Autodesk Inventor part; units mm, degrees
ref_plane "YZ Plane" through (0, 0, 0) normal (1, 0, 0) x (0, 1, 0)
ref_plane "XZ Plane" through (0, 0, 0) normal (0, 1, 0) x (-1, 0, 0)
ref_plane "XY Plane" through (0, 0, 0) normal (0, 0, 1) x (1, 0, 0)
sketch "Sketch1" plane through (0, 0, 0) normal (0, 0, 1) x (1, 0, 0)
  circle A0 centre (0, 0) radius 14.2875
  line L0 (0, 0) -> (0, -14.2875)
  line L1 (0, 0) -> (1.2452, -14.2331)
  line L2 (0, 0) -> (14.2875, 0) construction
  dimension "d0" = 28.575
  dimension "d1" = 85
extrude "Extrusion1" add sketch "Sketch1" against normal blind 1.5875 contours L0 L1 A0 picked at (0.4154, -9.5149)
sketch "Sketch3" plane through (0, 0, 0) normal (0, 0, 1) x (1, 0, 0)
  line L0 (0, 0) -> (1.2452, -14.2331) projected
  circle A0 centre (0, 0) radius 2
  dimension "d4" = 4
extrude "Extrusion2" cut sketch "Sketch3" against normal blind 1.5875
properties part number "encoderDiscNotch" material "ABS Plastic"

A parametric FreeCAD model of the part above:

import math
import FreeCAD as App
import Part
import Sketcher
Q = App.Units.Quantity

doc = App.newDocument("Part")
params = doc.addObject("Spreadsheet::Sheet", "Params")
for row, (alias, value) in enumerate([
    ("sketch1_radius", "0.5625 in"),
    ("pad1_length", "0.0625 in"),
    ("pocket1_length", "0.0625 in"),
], start=1):
    params.set(f"A{row}", alias)
    params.set(f"B{row}", "=" + value)
    params.setAlias(f"B{row}", alias)

body = doc.addObject("PartDesign::Body", "Body")

# Sketch on XY plane
sketch1 = body.newObject("Sketcher::SketchObject", "Sketch")
sketch1.AttachmentSupport = (doc.getObject("XY_Plane"), [""])
sketch1.MapMode = "FlatFace"
sketch1.addGeometry(Part.LineSegment(App.Vector(0, 0, 0), App.Vector(0, -14.3, 0)), False)
sketch1.addGeometry(Part.ArcOfCircle(Part.Circle(App.Vector(0, 0, 0), App.Vector(0, 0, 1), 14.3), math.radians(-90), math.radians(-85)), False)
sketch1.addGeometry(Part.LineSegment(App.Vector(1.2, -14.2, 0), App.Vector(0, 0, 0)), False)
sketch1.addConstraint(Sketcher.Constraint("Coincident", 0, 2, 1, 1))
sketch1.addConstraint(Sketcher.Constraint("Coincident", 1, 2, 2, 1))
sketch1.addConstraint(Sketcher.Constraint("Coincident", 2, 2, 0, 1))
sketch1.addConstraint(Sketcher.Constraint("Vertical", 0))
sketch1.addConstraint(Sketcher.Constraint("Coincident", 1, 3, -1, 1))
sketch1.addConstraint(Sketcher.Constraint("Coincident", 2, 2, -1, 1))
sketch1.addConstraint(Sketcher.Constraint("Radius", 1, Q("0.5625 in")))
sketch1.addConstraint(Sketcher.Constraint("Angle", 2, Q("94.9999 deg")))
sketch1.setExpression("Constraints[6]", "Params.sketch1_radius")
pad1 = body.newObject("PartDesign::Pad", "Pad")
pad1.Profile = sketch1
pad1.setExpression("Length", "Params.pad1_length")
pad1.Reversed = True

# Sketch on XY plane
sketch2 = body.newObject("Sketcher::SketchObject", "Sketch001")
sketch2.AttachmentSupport = (doc.getObject("XY_Plane"), [""])
sketch2.MapMode = "FlatFace"
sketch2.addGeometry(Part.Circle(App.Vector(0, 0, 0), App.Vector(0, 0, 1), 2), False)
sketch2.addConstraint(Sketcher.Constraint("Coincident", 0, 3, -1, 1))
sketch2.addConstraint(Sketcher.Constraint("Diameter", 0, Q("4 mm")))
pocket1 = body.newObject("PartDesign::Pocket", "Pocket")
pocket1.Profile = sketch2
pocket1.setExpression("Length", "Params.pocket1_length")

doc.recompute()
